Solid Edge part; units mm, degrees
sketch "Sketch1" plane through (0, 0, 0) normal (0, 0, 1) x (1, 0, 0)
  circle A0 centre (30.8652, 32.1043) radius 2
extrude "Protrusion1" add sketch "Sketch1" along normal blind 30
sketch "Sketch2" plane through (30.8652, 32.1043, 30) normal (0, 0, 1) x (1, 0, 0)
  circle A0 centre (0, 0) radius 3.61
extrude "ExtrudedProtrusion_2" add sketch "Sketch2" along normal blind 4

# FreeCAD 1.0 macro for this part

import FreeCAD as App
import Part
import Sketcher

V = App.Vector

doc = App.newDocument("Part")
body = doc.addObject("PartDesign::Body", "Body")

# Sketch on XY plane
sketch1 = doc.addObject("Sketcher::SketchObject", "Sketch")
body.addObject(sketch1)
sketch1.AttachmentSupport = (doc.XY_Plane, [""])
sketch1.MapMode = "FlatFace"
sketch1.addGeometry(Part.Circle(V(30.8652, 32.1043, 0), V(0, 0, 1), 2), False)
sketch1.addConstraint([
    Sketcher.Constraint("Diameter", 0, 4.0),
    Sketcher.Constraint("DistanceX", -1, 1, 0, 3, 30.8652),
    Sketcher.Constraint("DistanceY", -1, 1, 0, 3, 32.1043),
])
pad1 = doc.addObject("PartDesign::Pad", "Pad")
body.addObject(pad1)
pad1.Profile = sketch1
pad1.Length = 30

# Sketch on XY plane
sketch2 = doc.addObject("Sketcher::SketchObject", "Sketch001")
body.addObject(sketch2)
sketch2.AttachmentSupport = (doc.XY_Plane, [""])
sketch2.MapMode = "FlatFace"
sketch2.AttachmentOffset = App.Placement(V(0, 0, 30), App.Rotation())
sketch2.addGeometry(Part.Circle(V(30.8652, 32.1043, 0), V(0, 0, 1), 3.61), False)
sketch2.addConstraint([
    Sketcher.Constraint("Diameter", 0, 7.22),
    Sketcher.Constraint("DistanceX", -1, 1, 0, 3, 30.8652),
    Sketcher.Constraint("DistanceY", -1, 1, 0, 3, 32.1043),
])
pad2 = doc.addObject("PartDesign::Pad", "Pad001")
body.addObject(pad2)
pad2.Profile = sketch2
pad2.Length = 4

doc.recompute()
